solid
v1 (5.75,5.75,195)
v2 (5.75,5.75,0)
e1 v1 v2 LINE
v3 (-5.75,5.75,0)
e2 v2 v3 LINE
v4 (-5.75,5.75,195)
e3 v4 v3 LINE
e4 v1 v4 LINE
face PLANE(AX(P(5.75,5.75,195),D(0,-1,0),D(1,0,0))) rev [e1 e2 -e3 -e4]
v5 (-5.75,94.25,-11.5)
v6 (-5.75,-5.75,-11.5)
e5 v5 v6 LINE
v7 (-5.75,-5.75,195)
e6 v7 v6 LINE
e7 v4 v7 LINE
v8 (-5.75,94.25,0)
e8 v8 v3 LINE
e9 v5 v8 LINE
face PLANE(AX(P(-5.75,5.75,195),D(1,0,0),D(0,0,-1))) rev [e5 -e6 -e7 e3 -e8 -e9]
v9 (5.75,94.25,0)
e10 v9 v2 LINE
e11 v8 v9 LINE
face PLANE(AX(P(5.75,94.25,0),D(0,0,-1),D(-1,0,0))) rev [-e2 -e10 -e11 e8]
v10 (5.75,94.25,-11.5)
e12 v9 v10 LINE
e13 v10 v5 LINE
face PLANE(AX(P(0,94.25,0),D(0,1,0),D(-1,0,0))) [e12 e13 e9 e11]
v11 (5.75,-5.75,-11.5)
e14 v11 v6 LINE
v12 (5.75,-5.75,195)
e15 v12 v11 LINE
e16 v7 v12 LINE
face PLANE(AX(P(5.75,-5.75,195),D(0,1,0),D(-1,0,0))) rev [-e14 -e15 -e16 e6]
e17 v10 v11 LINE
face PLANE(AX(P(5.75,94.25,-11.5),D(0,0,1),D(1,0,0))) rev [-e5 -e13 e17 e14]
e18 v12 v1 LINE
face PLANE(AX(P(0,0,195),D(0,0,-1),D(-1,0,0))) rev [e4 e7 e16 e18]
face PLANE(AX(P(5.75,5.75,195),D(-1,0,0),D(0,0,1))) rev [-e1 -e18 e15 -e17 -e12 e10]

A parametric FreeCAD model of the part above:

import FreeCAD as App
import Part
import Sketcher
from FreeCAD import Vector
Q = App.Units.Quantity


def add_polygon(sketch, points):
    """Adds a closed chain of lines whose ends are joined by coincident constraints."""
    first, n = sketch.GeometryCount, len(points)
    for a, b in zip(points, points[1:] + points[:1]):
        sketch.addGeometry(Part.LineSegment(App.Vector(*a, 0), App.Vector(*b, 0)), False)
    for i in range(n):
        sketch.addConstraint(Sketcher.Constraint("Coincident", first + i, 2, first + (i + 1) % n, 1))

doc = App.newDocument("Part")
body = doc.addObject("PartDesign::Body", "Body")

sketch1 = body.newObject("Sketcher::SketchObject", "Sketch")
sketch1.AttachmentSupport = (doc.getObject("XY_Plane"), [""])
sketch1.MapMode = "FlatFace"
add_polygon(sketch1, [(-6, 6), (-6, -6), (6, -6), (6, 6)])
sketch1.addConstraint([
    Sketcher.Constraint("Vertical", 0),
    Sketcher.Constraint("Horizontal", 1),
    Sketcher.Constraint("Vertical", 2),
    Sketcher.Constraint("Horizontal", 3),
    Sketcher.Constraint("Symmetric", 0, 2, 2, 2, -1, 1),
    Sketcher.Constraint("Equal", 3, 0),
    Sketcher.Constraint("DistanceX", 1, 1, 1, 2, Q("11.5 mm")),
])
pad1 = body.newObject("PartDesign::Pad", "Pad")
pad1.Profile = sketch1
pad1.Length = 195

sketch2 = body.newObject("Sketcher::SketchObject", "Sketch001")
sketch2.AttachmentSupport = (doc.getObject("XZ_Plane"), [""])
sketch2.MapMode = "FlatFace"
sketch2.AttachmentOffset = App.Placement(Vector(0, 0, 5.75), App.Rotation())
add_polygon(sketch2, [(-6, -12), (-6, 0), (6, 0), (6, -12)])
sketch2.addConstraint([
    Sketcher.Constraint("Vertical", 0),
    Sketcher.Constraint("Horizontal", 1),
    Sketcher.Constraint("Vertical", 2),
    Sketcher.Constraint("Horizontal", 3),
    Sketcher.Constraint("Symmetric", 0, 2, 1, 2, -1, 1),
    Sketcher.Constraint("Equal", 3, 0),
    Sketcher.Constraint("DistanceX", 1, 1, 1, 2, Q("11.5 mm")),
])
pad2 = body.newObject("PartDesign::Pad", "Pad001")
pad2.Profile = sketch2
pad2.Length = 100
pad2.Reversed = True

doc.recompute()
